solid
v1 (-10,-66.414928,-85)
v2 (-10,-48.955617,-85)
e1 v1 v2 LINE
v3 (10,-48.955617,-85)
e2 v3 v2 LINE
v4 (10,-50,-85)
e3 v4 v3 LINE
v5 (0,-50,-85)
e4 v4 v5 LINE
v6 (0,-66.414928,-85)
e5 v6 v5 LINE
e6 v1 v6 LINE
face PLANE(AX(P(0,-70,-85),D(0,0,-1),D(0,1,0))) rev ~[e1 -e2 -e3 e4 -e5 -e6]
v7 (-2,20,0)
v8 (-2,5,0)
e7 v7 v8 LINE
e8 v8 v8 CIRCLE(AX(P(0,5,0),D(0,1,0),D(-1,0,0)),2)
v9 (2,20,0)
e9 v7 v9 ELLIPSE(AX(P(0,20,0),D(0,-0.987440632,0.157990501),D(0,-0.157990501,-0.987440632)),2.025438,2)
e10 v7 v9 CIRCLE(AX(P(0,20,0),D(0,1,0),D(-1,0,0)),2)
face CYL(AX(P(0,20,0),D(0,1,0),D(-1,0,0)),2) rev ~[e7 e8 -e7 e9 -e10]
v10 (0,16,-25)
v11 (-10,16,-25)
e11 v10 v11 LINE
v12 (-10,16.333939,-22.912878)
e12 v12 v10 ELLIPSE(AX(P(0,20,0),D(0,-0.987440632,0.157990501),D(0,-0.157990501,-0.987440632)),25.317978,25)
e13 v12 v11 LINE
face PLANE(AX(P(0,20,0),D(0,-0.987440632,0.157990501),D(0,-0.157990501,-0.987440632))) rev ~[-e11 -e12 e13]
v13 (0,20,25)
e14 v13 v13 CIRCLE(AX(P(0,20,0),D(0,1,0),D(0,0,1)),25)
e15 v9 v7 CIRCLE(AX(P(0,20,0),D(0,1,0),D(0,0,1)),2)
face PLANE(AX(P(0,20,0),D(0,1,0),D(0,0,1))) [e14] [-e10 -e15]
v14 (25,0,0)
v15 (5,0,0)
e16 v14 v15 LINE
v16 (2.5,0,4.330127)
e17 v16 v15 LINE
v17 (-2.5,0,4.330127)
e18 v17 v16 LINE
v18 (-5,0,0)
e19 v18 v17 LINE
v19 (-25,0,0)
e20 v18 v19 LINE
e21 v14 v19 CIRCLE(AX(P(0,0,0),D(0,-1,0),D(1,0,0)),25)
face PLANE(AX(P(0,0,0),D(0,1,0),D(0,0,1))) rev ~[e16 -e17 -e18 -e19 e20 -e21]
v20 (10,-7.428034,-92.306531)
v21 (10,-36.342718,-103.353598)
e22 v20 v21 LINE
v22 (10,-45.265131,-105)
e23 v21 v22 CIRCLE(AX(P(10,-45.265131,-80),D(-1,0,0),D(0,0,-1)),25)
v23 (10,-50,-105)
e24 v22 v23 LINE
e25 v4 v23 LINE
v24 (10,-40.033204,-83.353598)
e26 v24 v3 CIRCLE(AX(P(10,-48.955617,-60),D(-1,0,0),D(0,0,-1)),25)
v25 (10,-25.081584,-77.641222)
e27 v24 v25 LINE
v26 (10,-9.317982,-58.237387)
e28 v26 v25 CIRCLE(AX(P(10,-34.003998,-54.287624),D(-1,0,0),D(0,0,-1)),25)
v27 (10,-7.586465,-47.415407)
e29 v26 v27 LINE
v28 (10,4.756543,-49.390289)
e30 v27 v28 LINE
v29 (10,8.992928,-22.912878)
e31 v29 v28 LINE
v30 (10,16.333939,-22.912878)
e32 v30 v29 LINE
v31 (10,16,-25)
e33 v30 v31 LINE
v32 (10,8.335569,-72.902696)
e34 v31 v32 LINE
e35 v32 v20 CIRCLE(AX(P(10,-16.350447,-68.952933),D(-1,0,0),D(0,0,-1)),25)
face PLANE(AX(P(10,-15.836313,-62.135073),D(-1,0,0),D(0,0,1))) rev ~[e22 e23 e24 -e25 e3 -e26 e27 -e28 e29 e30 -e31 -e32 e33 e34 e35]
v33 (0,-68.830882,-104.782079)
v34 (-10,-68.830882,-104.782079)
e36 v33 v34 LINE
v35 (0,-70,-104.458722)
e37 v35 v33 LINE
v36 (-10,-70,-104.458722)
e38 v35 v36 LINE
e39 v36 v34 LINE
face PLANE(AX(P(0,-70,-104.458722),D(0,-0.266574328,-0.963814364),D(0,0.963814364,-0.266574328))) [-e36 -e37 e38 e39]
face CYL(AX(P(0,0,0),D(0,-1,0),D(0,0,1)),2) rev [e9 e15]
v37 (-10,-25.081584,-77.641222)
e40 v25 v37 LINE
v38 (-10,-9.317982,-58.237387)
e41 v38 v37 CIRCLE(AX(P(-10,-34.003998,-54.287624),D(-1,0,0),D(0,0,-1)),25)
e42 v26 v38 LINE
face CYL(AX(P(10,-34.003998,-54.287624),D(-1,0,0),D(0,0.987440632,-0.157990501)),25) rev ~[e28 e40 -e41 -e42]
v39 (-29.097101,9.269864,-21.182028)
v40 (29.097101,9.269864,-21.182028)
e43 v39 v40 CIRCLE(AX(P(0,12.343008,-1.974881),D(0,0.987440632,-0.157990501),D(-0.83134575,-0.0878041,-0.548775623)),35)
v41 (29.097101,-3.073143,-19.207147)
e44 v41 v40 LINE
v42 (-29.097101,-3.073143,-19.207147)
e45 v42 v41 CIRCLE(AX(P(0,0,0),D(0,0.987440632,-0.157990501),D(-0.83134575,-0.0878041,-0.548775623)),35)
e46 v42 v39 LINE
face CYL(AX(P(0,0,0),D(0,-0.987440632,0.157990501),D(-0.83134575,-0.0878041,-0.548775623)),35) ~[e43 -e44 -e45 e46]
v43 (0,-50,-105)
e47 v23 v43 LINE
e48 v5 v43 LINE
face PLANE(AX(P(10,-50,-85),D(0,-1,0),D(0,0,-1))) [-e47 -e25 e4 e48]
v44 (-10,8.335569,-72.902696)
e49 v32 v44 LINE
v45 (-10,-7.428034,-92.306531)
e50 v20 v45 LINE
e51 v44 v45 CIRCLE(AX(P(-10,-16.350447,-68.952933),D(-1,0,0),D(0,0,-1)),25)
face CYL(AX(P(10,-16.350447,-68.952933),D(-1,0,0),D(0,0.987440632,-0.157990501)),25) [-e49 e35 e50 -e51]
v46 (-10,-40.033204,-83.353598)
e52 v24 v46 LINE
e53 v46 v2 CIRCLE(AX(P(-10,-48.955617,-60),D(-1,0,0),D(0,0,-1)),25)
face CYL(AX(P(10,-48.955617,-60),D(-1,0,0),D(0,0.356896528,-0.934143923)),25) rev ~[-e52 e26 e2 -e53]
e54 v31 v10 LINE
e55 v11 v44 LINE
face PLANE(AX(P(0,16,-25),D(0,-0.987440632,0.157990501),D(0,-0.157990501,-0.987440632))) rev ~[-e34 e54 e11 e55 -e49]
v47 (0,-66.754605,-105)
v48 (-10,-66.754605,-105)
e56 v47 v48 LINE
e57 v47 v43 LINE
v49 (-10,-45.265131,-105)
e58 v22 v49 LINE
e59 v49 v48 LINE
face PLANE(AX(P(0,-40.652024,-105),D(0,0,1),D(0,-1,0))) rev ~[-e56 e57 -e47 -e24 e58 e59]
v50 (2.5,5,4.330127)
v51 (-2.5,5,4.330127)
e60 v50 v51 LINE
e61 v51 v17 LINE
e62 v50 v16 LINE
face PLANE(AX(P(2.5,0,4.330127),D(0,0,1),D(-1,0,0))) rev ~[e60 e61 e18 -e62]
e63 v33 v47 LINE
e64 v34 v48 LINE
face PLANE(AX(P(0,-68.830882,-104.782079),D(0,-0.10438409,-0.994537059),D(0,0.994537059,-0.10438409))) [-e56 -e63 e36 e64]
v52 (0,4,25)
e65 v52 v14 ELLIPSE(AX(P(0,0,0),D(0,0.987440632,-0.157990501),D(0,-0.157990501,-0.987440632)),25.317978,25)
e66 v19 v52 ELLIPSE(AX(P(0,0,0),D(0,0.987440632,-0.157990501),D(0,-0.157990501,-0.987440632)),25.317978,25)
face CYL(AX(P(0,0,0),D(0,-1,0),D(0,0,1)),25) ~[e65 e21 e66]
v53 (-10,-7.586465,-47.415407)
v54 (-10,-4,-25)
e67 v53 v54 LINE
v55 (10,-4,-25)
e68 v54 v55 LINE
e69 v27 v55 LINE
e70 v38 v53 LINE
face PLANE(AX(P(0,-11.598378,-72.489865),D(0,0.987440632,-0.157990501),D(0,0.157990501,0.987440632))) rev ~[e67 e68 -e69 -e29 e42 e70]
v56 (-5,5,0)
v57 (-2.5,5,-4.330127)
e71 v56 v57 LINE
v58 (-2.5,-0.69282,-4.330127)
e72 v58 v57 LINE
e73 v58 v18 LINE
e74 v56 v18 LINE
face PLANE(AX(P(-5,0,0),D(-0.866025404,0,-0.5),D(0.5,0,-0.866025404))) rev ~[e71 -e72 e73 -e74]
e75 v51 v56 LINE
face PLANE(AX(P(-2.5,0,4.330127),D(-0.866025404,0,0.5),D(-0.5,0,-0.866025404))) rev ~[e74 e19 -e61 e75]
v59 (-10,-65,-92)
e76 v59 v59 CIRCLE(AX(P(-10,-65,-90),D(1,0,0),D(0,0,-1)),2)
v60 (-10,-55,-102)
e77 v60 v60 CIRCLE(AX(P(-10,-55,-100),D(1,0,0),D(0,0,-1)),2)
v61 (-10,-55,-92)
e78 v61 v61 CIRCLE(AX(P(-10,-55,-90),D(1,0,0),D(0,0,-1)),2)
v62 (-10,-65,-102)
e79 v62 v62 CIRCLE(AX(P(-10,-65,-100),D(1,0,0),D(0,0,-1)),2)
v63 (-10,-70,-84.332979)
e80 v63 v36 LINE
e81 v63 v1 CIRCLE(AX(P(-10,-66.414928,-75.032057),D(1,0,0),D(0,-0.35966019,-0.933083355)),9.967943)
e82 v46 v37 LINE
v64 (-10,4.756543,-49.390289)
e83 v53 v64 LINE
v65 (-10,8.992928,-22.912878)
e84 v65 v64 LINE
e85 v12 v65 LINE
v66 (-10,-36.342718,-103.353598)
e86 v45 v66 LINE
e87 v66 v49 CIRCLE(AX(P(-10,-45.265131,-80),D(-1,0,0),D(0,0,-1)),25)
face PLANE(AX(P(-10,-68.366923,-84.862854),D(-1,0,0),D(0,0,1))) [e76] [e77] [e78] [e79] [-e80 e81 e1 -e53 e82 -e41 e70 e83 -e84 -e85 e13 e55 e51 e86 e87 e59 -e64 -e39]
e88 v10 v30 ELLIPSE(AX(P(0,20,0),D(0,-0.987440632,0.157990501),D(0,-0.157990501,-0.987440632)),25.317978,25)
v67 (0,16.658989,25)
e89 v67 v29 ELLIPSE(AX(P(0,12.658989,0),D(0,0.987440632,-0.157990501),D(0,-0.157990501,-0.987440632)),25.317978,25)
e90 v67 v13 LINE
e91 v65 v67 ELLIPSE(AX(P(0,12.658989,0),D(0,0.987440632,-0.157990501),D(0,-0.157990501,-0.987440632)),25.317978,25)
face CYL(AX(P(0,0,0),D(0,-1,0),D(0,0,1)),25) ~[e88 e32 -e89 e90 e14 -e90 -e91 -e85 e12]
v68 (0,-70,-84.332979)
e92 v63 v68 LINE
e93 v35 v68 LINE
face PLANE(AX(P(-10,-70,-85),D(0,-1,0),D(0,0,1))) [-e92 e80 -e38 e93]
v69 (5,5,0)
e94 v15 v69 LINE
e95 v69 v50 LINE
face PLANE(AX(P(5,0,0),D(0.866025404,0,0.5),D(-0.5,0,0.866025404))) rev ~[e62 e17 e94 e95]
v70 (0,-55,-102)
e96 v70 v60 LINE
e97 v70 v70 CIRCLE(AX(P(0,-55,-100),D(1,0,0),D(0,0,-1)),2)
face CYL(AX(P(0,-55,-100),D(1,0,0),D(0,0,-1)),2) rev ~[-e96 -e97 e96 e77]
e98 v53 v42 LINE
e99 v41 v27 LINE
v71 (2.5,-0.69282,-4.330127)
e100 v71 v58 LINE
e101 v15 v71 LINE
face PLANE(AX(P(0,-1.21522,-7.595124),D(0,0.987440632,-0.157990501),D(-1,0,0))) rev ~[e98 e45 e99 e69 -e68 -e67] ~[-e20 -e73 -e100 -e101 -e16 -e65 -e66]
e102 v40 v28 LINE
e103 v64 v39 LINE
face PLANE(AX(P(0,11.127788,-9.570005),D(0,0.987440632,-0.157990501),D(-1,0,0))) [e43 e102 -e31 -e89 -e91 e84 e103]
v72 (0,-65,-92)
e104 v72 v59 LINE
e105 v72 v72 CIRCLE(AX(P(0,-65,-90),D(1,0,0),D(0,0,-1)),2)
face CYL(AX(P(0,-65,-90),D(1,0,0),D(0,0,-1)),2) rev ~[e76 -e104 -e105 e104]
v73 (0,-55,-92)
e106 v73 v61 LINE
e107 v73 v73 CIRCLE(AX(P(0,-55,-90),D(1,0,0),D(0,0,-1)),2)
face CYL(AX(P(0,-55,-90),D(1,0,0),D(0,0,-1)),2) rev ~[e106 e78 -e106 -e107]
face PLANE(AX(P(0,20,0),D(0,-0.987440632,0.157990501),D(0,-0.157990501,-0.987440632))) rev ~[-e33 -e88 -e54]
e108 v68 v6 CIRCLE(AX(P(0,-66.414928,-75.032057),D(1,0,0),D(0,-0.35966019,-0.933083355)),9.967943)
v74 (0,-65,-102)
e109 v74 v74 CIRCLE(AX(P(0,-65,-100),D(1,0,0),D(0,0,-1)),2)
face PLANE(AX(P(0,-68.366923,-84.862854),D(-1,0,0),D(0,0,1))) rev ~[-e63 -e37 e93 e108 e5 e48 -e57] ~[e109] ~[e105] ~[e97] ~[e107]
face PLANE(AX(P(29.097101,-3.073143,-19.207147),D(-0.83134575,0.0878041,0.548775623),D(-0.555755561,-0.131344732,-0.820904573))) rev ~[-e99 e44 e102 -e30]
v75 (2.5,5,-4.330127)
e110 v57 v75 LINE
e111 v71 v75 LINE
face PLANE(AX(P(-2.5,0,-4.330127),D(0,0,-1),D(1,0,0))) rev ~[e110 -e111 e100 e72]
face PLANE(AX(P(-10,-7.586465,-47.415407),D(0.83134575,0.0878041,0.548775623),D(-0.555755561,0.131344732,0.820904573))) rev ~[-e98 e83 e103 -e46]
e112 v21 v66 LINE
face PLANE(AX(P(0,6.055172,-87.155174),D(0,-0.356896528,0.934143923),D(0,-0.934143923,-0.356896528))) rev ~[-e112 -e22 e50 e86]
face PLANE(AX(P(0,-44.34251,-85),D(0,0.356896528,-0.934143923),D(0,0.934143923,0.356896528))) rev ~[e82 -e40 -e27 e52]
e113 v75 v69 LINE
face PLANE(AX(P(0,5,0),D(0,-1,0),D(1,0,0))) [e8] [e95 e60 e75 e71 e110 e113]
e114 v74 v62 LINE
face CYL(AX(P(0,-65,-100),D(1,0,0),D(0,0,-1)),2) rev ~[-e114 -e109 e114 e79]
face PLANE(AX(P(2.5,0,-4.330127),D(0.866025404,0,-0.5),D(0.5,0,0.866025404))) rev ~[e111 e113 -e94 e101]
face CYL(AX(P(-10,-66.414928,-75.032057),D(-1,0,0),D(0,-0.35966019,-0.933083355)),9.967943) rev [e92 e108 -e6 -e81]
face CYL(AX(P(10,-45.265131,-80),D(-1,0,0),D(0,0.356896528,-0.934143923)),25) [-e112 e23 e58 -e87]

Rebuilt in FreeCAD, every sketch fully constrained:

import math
import FreeCAD as App
import Part
import Sketcher
Q = App.Units.Quantity


def edges_at(feature, points):
    """Names of the edges that pass closest to the given points."""
    edges = feature.Shape.Edges
    near = lambda p: min(range(len(edges)), key=lambda i: edges[i].distToShape(Part.Vertex(*p))[0])
    return sorted({f"Edge{near(p) + 1}" for p in points})

doc = App.newDocument("Part")
body = doc.addObject("PartDesign::Body", "Body")

sketch1 = doc.addObject("Sketcher::SketchObject", "Sketch")
body.addObject(sketch1)
sketch1.AttachmentSupport = (doc.XZ_Plane, [""])
sketch1.MapMode = "FlatFace"
sketch1.addGeometry([
    Part.Circle(App.Vector(0, 0, 0), App.Vector(0, 0, 1), 25),
    Part.Circle(App.Vector(0, 0, 0), App.Vector(0, 0, 1), 2),
], False)
sketch1.addConstraint([
    Sketcher.Constraint("Coincident", 0, 3, -1, 1),
    Sketcher.Constraint("Coincident", 1, 3, -1, 1),
    Sketcher.Constraint("Diameter", 0, 50.0),
    Sketcher.Constraint("Diameter", 1, 4.0),
])
pad1 = doc.addObject("PartDesign::Pad", "Pad")
body.addObject(pad1)
pad1.Profile = sketch1
pad1.Length = 20
pad1.Reversed = True

sketch2 = doc.addObject("Sketcher::SketchObject", "Sketch001")
body.addObject(sketch2)
sketch2.AttachmentSupport = (doc.YZ_Plane, [""])
sketch2.MapMode = "FlatFace"
sketch2.addGeometry([
    Part.LineSegment(App.Vector(16, -25, 0), App.Vector(20, 0, 0)),
    Part.LineSegment(App.Vector(20, 0, 0), App.Vector(0, 0, 0)),
    Part.LineSegment(App.Vector(0, 0, 0), App.Vector(-4, -25, 0)),
    Part.LineSegment(App.Vector(-4, -25, 0), App.Vector(-12, -72, 0)),
    Part.LineSegment(App.Vector(-12, -72, 0), App.Vector(-44, -85, 0)),
    Part.LineSegment(App.Vector(-44, -85, 0), App.Vector(-70, -85, 0)),
    Part.LineSegment(App.Vector(-70, -85, 0), App.Vector(-70, -105, 0)),
    Part.LineSegment(App.Vector(-70, -105, 0), App.Vector(-41, -105, 0)),
    Part.LineSegment(App.Vector(-41, -105, 0), App.Vector(6, -87, 0)),
    Part.LineSegment(App.Vector(6, -87, 0), App.Vector(16, -25, 0)),
], False)
sketch2.addConstraint([
    Sketcher.Constraint("Coincident", 0, 2, 1, 1),
    Sketcher.Constraint("Coincident", 1, 2, 2, 1),
    Sketcher.Constraint("Coincident", 2, 2, 3, 1),
    Sketcher.Constraint("Coincident", 3, 2, 4, 1),
    Sketcher.Constraint("Coincident", 4, 2, 5, 1),
    Sketcher.Constraint("Coincident", 5, 2, 6, 1),
    Sketcher.Constraint("Coincident", 6, 2, 7, 1),
    Sketcher.Constraint("Coincident", 7, 2, 8, 1),
    Sketcher.Constraint("Coincident", 8, 2, 9, 1),
    Sketcher.Constraint("Coincident", 9, 2, 0, 1),
    Sketcher.Constraint("Horizontal", 1),
    Sketcher.Constraint("Horizontal", 5),
    Sketcher.Constraint("Vertical", 6),
    Sketcher.Constraint("Horizontal", 7),
    Sketcher.Constraint("Coincident", 1, 2, -1, 1),
    Sketcher.Constraint("Parallel", 0, 2),
    Sketcher.Constraint("Parallel", 2, 3),
    Sketcher.Constraint("Parallel", 4, 8),
    Sketcher.Constraint("Parallel", 3, 9),
    Sketcher.Constraint("Horizontal", 2, 2, 9, 2),
    Sketcher.Constraint("Equal", 1, 6),
    Sketcher.Constraint("DistanceX", 1, 2, 1, 1, 20.0),
    Sketcher.Constraint("Distance", 8, 50.0),
    Sketcher.Constraint("DistanceX", 2, 2, -1, 1, 4.0),
    Sketcher.Constraint("DistanceY", 2, 2, -1, 1, 25.0),
    Sketcher.Constraint("DistanceY", 4, 2, -1, 1, 85.0),
    Sketcher.Constraint("DistanceX", 5, 2, -1, 1, 70.0),
    Sketcher.Constraint("DistanceX", 5, 2, 5, 1, 25.65749),
    Sketcher.Constraint("DistanceX", 7, 1, 7, 2, 29.347976),
])
pad2 = doc.addObject("PartDesign::Pad", "Pad001")
body.addObject(pad2)
pad2.Profile = sketch2
pad2.Length = 20
pad2.Midplane = True

sketch3 = doc.addObject("Sketcher::SketchObject", "Sketch002")
body.addObject(sketch3)
sketch3.Placement = App.Placement(App.Vector(0, 0, 0), App.Rotation(App.Vector(1, 0, 0), App.Vector(0, 0.157990501, 0.987440632), App.Vector(0, -0.987440632, 0.157990501), "ZXY"))
sketch3.addGeometry([
    Part.LineSegment(App.Vector(-29, -19, 0), App.Vector(-10, -48, 0)),
    Part.LineSegment(App.Vector(-10, -48, 0), App.Vector(10, -48, 0)),
    Part.LineSegment(App.Vector(10, -48, 0), App.Vector(29, -19, 0)),
    Part.ArcOfCircle(Part.Circle(App.Vector(0, 0, 0), App.Vector(0, 0, 1), 35), math.radians(-34), math.radians(214)),
], False)
sketch3.addConstraint([
    Sketcher.Constraint("Coincident", 0, 2, 1, 1),
    Sketcher.Constraint("Coincident", 1, 2, 2, 1),
    Sketcher.Constraint("Tangent", 2, 2, 3, 1),
    Sketcher.Constraint("Tangent", 3, 2, 0, 1),
    Sketcher.Constraint("Horizontal", 1),
    Sketcher.Constraint("Coincident", 3, 3, -1, 1),
    Sketcher.Constraint("Horizontal", 2, 2, 3, 2),
    Sketcher.Constraint("Radius", 3, 35.0),
    Sketcher.Constraint("DistanceX", 1, 1, 1, 2, 20.0),
    Sketcher.Constraint("DistanceX", -1, 1, 2, 2, 29.097101),
])
pad3 = doc.addObject("PartDesign::Pad", "Pad002")
body.addObject(pad3)
pad3.Profile = sketch3
pad3.Length = 12.5
pad3.Reversed = True

sketch4 = doc.addObject("Sketcher::SketchObject", "Sketch003")
body.addObject(sketch4)
sketch4.AttachmentSupport = (doc.YZ_Plane, [""])
sketch4.MapMode = "FlatFace"
sketch4.AttachmentOffset = App.Placement(App.Vector(0, 0, 10), App.Rotation())
sketch4.addGeometry([
    Part.LineSegment(App.Vector(-50, -85, 0), App.Vector(-70, -85, 0)),
    Part.LineSegment(App.Vector(-70, -85, 0), App.Vector(-70, -105, 0)),
    Part.LineSegment(App.Vector(-70, -105, 0), App.Vector(-50, -105, 0)),
    Part.LineSegment(App.Vector(-50, -105, 0), App.Vector(-50, -85, 0)),
], False)
sketch4.addConstraint([
    Sketcher.Constraint("Coincident", 0, 2, 1, 1),
    Sketcher.Constraint("Coincident", 1, 2, 2, 1),
    Sketcher.Constraint("Coincident", 2, 2, 3, 1),
    Sketcher.Constraint("Coincident", 3, 2, 0, 1),
    Sketcher.Constraint("Horizontal", 0),
    Sketcher.Constraint("Vertical", 1),
    Sketcher.Constraint("Horizontal", 2),
    Sketcher.Constraint("Vertical", 3),
    Sketcher.Constraint("Equal", 2, 1),
    Sketcher.Constraint("DistanceX", 0, 2, 0, 1, 20.0),
    Sketcher.Constraint("DistanceX", 0, 2, -1, 1, 70.0),
    Sketcher.Constraint("DistanceY", 0, 2, -1, 1, 85.0),
])
pocket1 = doc.addObject("PartDesign::Pocket", "Pocket")
body.addObject(pocket1)
pocket1.Profile = sketch4
pocket1.Length = 10

sketch5 = doc.addObject("Sketcher::SketchObject", "Sketch004")
body.addObject(sketch5)
sketch5.AttachmentSupport = (doc.YZ_Plane, [""])
sketch5.MapMode = "FlatFace"
sketch5.addGeometry([
    Part.Circle(App.Vector(-55, -100, 0), App.Vector(0, 0, 1), 2),
    Part.Circle(App.Vector(-65, -100, 0), App.Vector(0, 0, 1), 2),
    Part.Circle(App.Vector(-65, -90, 0), App.Vector(0, 0, 1), 2),
    Part.Circle(App.Vector(-55, -90, 0), App.Vector(0, 0, 1), 2),
], False)
sketch5.addConstraint([
    Sketcher.Constraint("Equal", 0, 1),
    Sketcher.Constraint("Equal", 1, 2),
    Sketcher.Constraint("Equal", 2, 3),
    Sketcher.Constraint("Horizontal", 0, 3, 1, 3),
    Sketcher.Constraint("Horizontal", 2, 3, 3, 3),
    Sketcher.Constraint("Vertical", 1, 3, 2, 3),
    Sketcher.Constraint("Vertical", 0, 3, 3, 3),
    Sketcher.Constraint("Diameter", 0, 4.0),
    Sketcher.Constraint("DistanceX", 0, 3, -1, 1, 55.0),
    Sketcher.Constraint("DistanceY", 0, 3, -1, 1, 100.0),
    Sketcher.Constraint("DistanceX", 1, 3, -1, 1, 65.0),
    Sketcher.Constraint("DistanceY", 2, 3, -1, 1, 90.0),
])
pocket2 = doc.addObject("PartDesign::Pocket", "Pocket001")
body.addObject(pocket2)
pocket2.Profile = sketch5
pocket2.Length = 10

sketch6 = doc.addObject("Sketcher::SketchObject", "Sketch005")
body.addObject(sketch6)
sketch6.AttachmentSupport = (doc.XZ_Plane, [""])
sketch6.MapMode = "FlatFace"
sketch6.AttachmentOffset = App.Placement(App.Vector(0, 0, -20), App.Rotation())
sketch6.addGeometry(Part.Circle(App.Vector(0, 0, 0), App.Vector(0, 0, 1), 2), False)
sketch6.addConstraint([
    Sketcher.Constraint("Coincident", 0, 3, -1, 1),
    Sketcher.Constraint("Diameter", 0, 4.0),
])
pocket3 = doc.addObject("PartDesign::Pocket", "Pocket002")
body.addObject(pocket3)
pocket3.Profile = sketch6
pocket3.Type = "ThroughAll"
pocket3.Reversed = True

sketch7 = doc.addObject("Sketcher::SketchObject", "Sketch006")
body.addObject(sketch7)
sketch7.AttachmentSupport = (doc.XZ_Plane, [""])
sketch7.MapMode = "FlatFace"
sketch7.addGeometry([
    Part.LineSegment(App.Vector(5, 0, 0), App.Vector(2, 4, 0)),
    Part.LineSegment(App.Vector(2, 4, 0), App.Vector(-2, 4, 0)),
    Part.LineSegment(App.Vector(-2, 4, 0), App.Vector(-5, 0, 0)),
    Part.LineSegment(App.Vector(-5, 0, 0), App.Vector(-2, -4, 0)),
    Part.LineSegment(App.Vector(-2, -4, 0), App.Vector(2, -4, 0)),
    Part.LineSegment(App.Vector(2, -4, 0), App.Vector(5, 0, 0)),
], False)
sketch7.addConstraint([
    Sketcher.Constraint("Coincident", 0, 2, 1, 1),
    Sketcher.Constraint("Coincident", 1, 2, 2, 1),
    Sketcher.Constraint("Coincident", 2, 2, 3, 1),
    Sketcher.Constraint("Coincident", 3, 2, 4, 1),
    Sketcher.Constraint("Coincident", 4, 2, 5, 1),
    Sketcher.Constraint("Coincident", 5, 2, 0, 1),
    Sketcher.Constraint("Horizontal", 1),
    Sketcher.Constraint("Horizontal", 4),
    Sketcher.Constraint("Symmetric", 0, 2, 3, 2, -1, 1),
    Sketcher.Constraint("Symmetric", 2, 2, 5, 2, -1, 1),
    Sketcher.Constraint("PointOnObject", 2, 2, -1),
    Sketcher.Constraint("Parallel", 2, 5),
    Sketcher.Constraint("Vertical", 1, 2, 3, 2),
    Sketcher.Constraint("DistanceX", 1, 2, 1, 1, 5.0),
    Sketcher.Constraint("Angle", 0, Q("120 deg")),
    Sketcher.Constraint("Distance", 0, 5.0),
])
pocket4 = doc.addObject("PartDesign::Pocket", "Pocket003")
body.addObject(pocket4)
pocket4.Profile = sketch7
pocket4.Length = 10
pocket4.Midplane = True
doc.recompute()

fillet = doc.addObject("PartDesign::Fillet", "Fillet")
body.addObject(fillet)
fillet.Base = (pocket4, edges_at(pocket4, [
    (0, -11.598, -72.49),
    (0, -44.343, -85),
    (0, -40.652, -105),
    (0, 6.055, -87.155),
]))
fillet.Radius = 25

sketch8 = doc.addObject("Sketcher::SketchObject", "Sketch007")
body.addObject(sketch8)
sketch8.AttachmentSupport = (doc.YZ_Plane, [""])
sketch8.MapMode = "FlatFace"
sketch8.AttachmentOffset = App.Placement(App.Vector(0, 0, -10), App.Rotation())
sketch8.addGeometry([
    Part.LineSegment(App.Vector(-70, -85, 0), App.Vector(-70, -84.3, 0)),
    Part.ArcOfCircle(Part.Circle(App.Vector(-66.4, -75, 0), App.Vector(0, 0, 1), 10), math.radians(-111), math.radians(-90)),
    Part.LineSegment(App.Vector(-66.4, -85, 0), App.Vector(-70, -85, 0)),
], False)
sketch8.addConstraint([
    Sketcher.Constraint("Coincident", 0, 2, 1, 1),
    Sketcher.Constraint("Tangent", 1, 2, 2, 1),
    Sketcher.Constraint("Coincident", 2, 2, 0, 1),
    Sketcher.Constraint("Vertical", 0),
    Sketcher.Constraint("Horizontal", 2),
    Sketcher.Constraint("DistanceX", 0, 2, -1, 1, 70.0),
    Sketcher.Constraint("DistanceY", 1, 2, -1, 1, 85.0),
    Sketcher.Constraint("Radius", 1, 9.967943),
    Sketcher.Constraint("DistanceY", 0, 1, 0, 2, 0.667021),
])
pad4 = doc.addObject("PartDesign::Pad", "Pad003")
body.addObject(pad4)
pad4.Profile = sketch8
pad4.Length = 10

sketch9 = doc.addObject("Sketcher::SketchObject", "Sketch008")
body.addObject(sketch9)
sketch9.AttachmentSupport = (doc.YZ_Plane, [""])
sketch9.MapMode = "FlatFace"
sketch9.addGeometry([
    Part.LineSegment(App.Vector(-70, -105, 0), App.Vector(-66.8, -105, 0)),
    Part.LineSegment(App.Vector(-66.8, -105, 0), App.Vector(-68.8, -104.8, 0)),
    Part.LineSegment(App.Vector(-68.8, -104.8, 0), App.Vector(-70, -104.5, 0)),
    Part.LineSegment(App.Vector(-70, -104.5, 0), App.Vector(-70, -105, 0)),
], False)
sketch9.addConstraint([
    Sketcher.Constraint("Coincident", 0, 2, 1, 1),
    Sketcher.Constraint("Coincident", 1, 2, 2, 1),
    Sketcher.Constraint("Coincident", 2, 2, 3, 1),
    Sketcher.Constraint("Coincident", 3, 2, 0, 1),
    Sketcher.Constraint("Horizontal", 0),
    Sketcher.Constraint("Vertical", 3),
    Sketcher.Constraint("DistanceY", 0, 2, -1, 1, 105.0),
    Sketcher.Constraint("DistanceX", 2, 2, -1, 1, 70.0),
    Sketcher.Constraint("DistanceY", 3, 2, 3, 1, 0.541278),
    Sketcher.Constraint("Distance", 1, 2.087682),
    Sketcher.Constraint("Distance", 2, 1.213011),
    Sketcher.Constraint("DistanceX", 0, 1, 0, 2, 3.245395),
])
pocket5 = doc.addObject("PartDesign::Pocket", "Pocket004")
body.addObject(pocket5)
pocket5.Profile = sketch9
pocket5.Length = 10

doc.recompute()
